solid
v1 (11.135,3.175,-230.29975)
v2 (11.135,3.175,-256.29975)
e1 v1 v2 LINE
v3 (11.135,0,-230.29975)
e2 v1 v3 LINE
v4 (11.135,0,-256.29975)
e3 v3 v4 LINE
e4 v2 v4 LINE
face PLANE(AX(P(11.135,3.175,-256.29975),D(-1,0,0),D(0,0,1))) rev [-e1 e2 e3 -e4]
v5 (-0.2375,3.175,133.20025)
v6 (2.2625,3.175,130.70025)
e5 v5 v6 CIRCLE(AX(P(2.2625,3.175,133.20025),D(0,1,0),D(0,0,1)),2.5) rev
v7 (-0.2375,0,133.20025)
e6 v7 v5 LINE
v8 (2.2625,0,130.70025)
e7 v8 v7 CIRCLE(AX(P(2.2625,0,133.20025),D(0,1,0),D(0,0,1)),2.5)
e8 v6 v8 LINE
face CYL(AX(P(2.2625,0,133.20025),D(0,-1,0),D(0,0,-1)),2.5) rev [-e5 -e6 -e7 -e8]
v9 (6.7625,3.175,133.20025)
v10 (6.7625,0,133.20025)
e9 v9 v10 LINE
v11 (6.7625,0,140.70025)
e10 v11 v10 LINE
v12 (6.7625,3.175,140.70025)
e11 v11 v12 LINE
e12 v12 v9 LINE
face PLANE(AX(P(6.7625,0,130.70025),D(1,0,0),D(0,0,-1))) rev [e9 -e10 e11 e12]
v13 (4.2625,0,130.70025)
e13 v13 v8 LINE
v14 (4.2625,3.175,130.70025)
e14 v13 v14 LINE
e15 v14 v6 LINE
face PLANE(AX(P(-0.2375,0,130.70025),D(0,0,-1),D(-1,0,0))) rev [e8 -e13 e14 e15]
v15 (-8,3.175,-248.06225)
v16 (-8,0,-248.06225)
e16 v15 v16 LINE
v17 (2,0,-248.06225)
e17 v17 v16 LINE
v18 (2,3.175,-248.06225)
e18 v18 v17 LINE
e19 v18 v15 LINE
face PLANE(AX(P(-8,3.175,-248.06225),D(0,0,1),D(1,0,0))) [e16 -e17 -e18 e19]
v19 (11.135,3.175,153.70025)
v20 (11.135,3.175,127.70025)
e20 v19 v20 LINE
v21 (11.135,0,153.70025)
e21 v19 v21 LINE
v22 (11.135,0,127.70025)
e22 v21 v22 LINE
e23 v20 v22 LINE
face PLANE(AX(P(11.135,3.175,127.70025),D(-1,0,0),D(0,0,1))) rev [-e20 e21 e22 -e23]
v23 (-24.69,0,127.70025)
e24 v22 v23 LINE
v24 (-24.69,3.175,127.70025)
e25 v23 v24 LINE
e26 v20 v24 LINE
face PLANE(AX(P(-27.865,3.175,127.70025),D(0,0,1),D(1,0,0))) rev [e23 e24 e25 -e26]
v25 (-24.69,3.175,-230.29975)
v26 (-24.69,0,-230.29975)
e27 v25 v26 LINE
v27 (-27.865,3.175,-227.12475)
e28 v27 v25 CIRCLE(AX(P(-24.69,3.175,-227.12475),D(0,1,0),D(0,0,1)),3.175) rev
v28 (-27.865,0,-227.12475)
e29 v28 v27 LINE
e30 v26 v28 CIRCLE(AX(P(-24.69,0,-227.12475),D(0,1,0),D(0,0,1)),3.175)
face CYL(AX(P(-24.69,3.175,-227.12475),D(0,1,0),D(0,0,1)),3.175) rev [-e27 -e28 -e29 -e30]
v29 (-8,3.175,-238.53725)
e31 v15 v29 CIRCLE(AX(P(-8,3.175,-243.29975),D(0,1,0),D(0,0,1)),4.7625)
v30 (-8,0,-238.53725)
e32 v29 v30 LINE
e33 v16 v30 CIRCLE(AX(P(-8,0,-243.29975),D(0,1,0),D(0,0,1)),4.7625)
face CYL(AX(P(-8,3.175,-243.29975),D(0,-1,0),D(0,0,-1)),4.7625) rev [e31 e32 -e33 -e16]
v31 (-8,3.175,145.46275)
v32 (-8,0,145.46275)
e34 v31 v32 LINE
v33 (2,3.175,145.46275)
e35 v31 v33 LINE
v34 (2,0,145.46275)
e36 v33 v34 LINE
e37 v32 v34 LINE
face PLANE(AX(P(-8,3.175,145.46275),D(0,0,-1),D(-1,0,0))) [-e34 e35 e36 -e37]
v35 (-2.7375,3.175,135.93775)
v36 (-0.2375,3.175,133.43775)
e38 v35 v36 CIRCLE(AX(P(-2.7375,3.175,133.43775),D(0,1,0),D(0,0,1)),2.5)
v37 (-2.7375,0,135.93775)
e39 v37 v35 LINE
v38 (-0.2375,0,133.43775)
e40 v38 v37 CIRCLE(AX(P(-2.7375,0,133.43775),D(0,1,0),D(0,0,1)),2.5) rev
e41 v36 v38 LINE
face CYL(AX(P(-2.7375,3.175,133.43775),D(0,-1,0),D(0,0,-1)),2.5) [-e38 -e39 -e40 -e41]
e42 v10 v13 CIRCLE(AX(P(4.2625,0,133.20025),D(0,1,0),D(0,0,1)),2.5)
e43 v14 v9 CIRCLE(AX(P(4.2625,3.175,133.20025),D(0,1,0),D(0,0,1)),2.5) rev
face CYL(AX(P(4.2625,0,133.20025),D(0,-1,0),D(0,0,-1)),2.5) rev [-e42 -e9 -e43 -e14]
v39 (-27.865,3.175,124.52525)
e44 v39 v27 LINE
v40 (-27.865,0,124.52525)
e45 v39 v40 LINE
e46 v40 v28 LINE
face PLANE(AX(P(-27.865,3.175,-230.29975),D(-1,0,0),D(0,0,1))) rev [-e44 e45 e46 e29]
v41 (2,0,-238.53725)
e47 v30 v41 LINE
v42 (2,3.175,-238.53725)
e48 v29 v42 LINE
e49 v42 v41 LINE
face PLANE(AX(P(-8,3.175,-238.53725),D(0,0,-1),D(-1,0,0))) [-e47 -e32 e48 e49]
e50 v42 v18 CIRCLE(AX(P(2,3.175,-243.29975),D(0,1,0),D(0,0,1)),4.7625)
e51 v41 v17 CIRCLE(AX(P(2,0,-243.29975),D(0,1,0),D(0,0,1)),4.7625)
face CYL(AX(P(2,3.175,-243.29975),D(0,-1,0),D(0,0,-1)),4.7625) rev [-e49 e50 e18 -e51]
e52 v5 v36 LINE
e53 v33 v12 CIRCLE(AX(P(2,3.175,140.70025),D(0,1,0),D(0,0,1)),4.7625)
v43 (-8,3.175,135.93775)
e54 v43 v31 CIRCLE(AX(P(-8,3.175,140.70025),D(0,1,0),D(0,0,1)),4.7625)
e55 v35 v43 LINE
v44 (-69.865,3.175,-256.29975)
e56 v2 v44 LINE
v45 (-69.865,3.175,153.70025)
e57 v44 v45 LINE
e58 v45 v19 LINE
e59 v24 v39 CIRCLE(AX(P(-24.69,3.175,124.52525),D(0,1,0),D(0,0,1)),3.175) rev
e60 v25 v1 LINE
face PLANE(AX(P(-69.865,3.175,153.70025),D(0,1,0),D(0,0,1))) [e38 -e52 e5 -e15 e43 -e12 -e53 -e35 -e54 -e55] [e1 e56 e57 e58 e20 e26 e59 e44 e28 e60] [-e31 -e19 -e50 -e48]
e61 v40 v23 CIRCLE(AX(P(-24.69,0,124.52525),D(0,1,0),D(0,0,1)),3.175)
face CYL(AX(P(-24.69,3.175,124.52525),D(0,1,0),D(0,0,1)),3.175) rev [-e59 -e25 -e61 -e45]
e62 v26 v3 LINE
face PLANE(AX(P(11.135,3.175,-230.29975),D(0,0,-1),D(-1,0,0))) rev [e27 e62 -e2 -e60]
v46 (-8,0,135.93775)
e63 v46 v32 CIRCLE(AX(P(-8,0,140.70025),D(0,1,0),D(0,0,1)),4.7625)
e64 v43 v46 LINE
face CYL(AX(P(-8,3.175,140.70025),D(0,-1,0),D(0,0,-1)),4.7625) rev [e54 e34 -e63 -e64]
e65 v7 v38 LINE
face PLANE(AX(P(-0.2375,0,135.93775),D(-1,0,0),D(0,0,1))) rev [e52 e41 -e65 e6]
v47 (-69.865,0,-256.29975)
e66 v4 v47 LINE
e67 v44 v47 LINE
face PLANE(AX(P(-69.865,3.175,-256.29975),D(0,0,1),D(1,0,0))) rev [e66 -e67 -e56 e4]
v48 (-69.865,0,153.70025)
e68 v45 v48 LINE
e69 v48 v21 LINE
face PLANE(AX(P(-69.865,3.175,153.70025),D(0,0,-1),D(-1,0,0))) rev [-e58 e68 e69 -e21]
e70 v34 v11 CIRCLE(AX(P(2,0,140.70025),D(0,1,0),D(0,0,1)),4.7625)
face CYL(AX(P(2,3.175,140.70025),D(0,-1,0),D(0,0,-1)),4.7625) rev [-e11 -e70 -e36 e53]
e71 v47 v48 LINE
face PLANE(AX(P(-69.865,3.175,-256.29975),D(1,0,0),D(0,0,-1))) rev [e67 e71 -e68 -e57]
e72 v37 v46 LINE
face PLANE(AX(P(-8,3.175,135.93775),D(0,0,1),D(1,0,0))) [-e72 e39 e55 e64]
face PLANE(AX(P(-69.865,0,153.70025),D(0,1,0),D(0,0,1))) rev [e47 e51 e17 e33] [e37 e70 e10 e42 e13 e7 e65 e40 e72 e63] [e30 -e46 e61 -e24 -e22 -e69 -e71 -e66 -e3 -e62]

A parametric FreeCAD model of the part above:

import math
import FreeCAD as App
import Part
import Sketcher
from FreeCAD import Vector
Q = App.Units.Quantity


def edges_at(feature, points):
    """Names of the edges that pass closest to the given points."""
    edges = feature.Shape.Edges
    near = lambda p: min(range(len(edges)), key=lambda i: edges[i].distToShape(Part.Vertex(*p))[0])
    return sorted({f"Edge{near(p) + 1}" for p in points})


def add_polygon(sketch, points):
    """Adds a closed chain of lines whose ends are joined by coincident constraints."""
    first, n = sketch.GeometryCount, len(points)
    for a, b in zip(points, points[1:] + points[:1]):
        sketch.addGeometry(Part.LineSegment(App.Vector(*a, 0), App.Vector(*b, 0)), False)
    for i in range(n):
        sketch.addConstraint(Sketcher.Constraint("Coincident", first + i, 2, first + (i + 1) % n, 1))

doc = App.newDocument("Part")
body = doc.addObject("PartDesign::Body", "Body")

# Sketch on XZ plane
sketch1 = doc.addObject("Sketcher::SketchObject", "Sketch")
body.addObject(sketch1)
sketch1.AttachmentSupport = (doc.XZ_Plane, [""])
sketch1.MapMode = "FlatFace"
add_polygon(sketch1, [(11.1, -256.3), (-69.9, -256.3), (-69.9, 153.7), (11.1, 153.7), (11.1, 127.7), (-27.9, 127.7), (-27.9, -230.3), (11.1, -230.3)])  # lines 0-7
sketch1.addGeometry(Part.LineSegment(Vector(-8, 135.9, 0), Vector(2, 135.9, 0)), False)  # 8
sketch1.addGeometry(Part.ArcOfCircle(Part.Circle(Vector(2, 140.7, 0), Vector(0, 0, 1), 4.8), math.radians(-90), math.radians(90)), False)  # 9
sketch1.addGeometry(Part.LineSegment(Vector(2, 145.5, 0), Vector(-8, 145.5, 0)), False)  # 10
sketch1.addGeometry(Part.ArcOfCircle(Part.Circle(Vector(-8, 140.7, 0), Vector(0, 0, 1), 4.8), math.radians(90), math.radians(270)), False)  # 11
sketch1.addGeometry(Part.LineSegment(Vector(-8, -248.1, 0), Vector(2, -248.1, 0)), False)  # 12
sketch1.addGeometry(Part.ArcOfCircle(Part.Circle(Vector(2, -243.3, 0), Vector(0, 0, 1), 4.8), math.radians(-90), math.radians(90)), False)  # 13
sketch1.addGeometry(Part.LineSegment(Vector(2, -238.5, 0), Vector(-8, -238.5, 0)), False)  # 14
sketch1.addGeometry(Part.ArcOfCircle(Part.Circle(Vector(-8, -243.3, 0), Vector(0, 0, 1), 4.8), math.radians(90), math.radians(270)), False)  # 15
sketch1.addConstraint([
    Sketcher.Constraint("Tangent", 8, 2, 9, 1),
    Sketcher.Constraint("Tangent", 9, 2, 10, 1),
    Sketcher.Constraint("Tangent", 10, 2, 11, 1),
    Sketcher.Constraint("Tangent", 11, 2, 8, 1),
    Sketcher.Constraint("Tangent", 12, 2, 13, 1),
    Sketcher.Constraint("Tangent", 13, 2, 14, 1),
    Sketcher.Constraint("Tangent", 14, 2, 15, 1),
    Sketcher.Constraint("Tangent", 15, 2, 12, 1),
    Sketcher.Constraint("Horizontal", 0),
    Sketcher.Constraint("Vertical", 1),
    Sketcher.Constraint("Horizontal", 2),
    Sketcher.Constraint("Vertical", 3),
    Sketcher.Constraint("Horizontal", 4),
    Sketcher.Constraint("Vertical", 5),
    Sketcher.Constraint("Horizontal", 6),
    Sketcher.Constraint("Vertical", 7),
    Sketcher.Constraint("Horizontal", 8),
    Sketcher.Constraint("Horizontal", 10),
    Sketcher.Constraint("Horizontal", 12),
    Sketcher.Constraint("Horizontal", 14),
    Sketcher.Constraint("Equal", 11, 13),
    Sketcher.Constraint("Vertical", 9, 3, 13, 3),
    Sketcher.Constraint("Vertical", 11, 3, 15, 3),
    Sketcher.Constraint("Vertical", 3, 2, 6, 2),
    Sketcher.Constraint("Equal", 3, 7),
    Sketcher.Constraint("DistanceX", 0, 2, 0, 1, Q("81 mm")),
    Sketcher.Constraint("DistanceX", 4, 2, 4, 1, Q("39 mm")),
    Sketcher.Constraint("DistanceX", 8, 1, 8, 2, Q("10 mm")),
    Sketcher.Constraint("DistanceY", 1, 1, 1, 2, Q("410 mm")),
    Sketcher.Constraint("DistanceY", 3, 2, 3, 1, Q("26 mm")),
    Sketcher.Constraint("DistanceX", -1, 1, 9, 3, Q("2 mm")),
    Sketcher.Constraint("DistanceY", 13, 3, 9, 3, Q("384 mm")),
    Sketcher.Constraint("DistanceY", 0, 2, 15, 3, Q("13 mm")),
    Sketcher.Constraint("Radius", 9, Q("4.7625 mm")),
    Sketcher.Constraint("DistanceX", 0, 2, -1, 1, Q("69.865 mm")),
    Sketcher.Constraint("DistanceY", -1, 1, 9, 3, Q("140.70025 mm")),
])
pad1 = doc.addObject("PartDesign::Pad", "Pad")
body.addObject(pad1)
pad1.Profile = sketch1
pad1.Length = 3.175
pad1.Reversed = True

# Sketch on XZ plane
sketch2 = doc.addObject("Sketcher::SketchObject", "Sketch001")
body.addObject(sketch2)
sketch2.AttachmentSupport = (doc.XZ_Plane, [""])
sketch2.MapMode = "FlatFace"
sketch2.AttachmentOffset = App.Placement(Vector(0, 0, -3.175), App.Rotation())
sketch2.addGeometry([
    Part.LineSegment(Vector(-0.2, 130.7, 0), Vector(-0.2, 135.9, 0)),  # 0
    Part.LineSegment(Vector(-0.2, 135.9, 0), Vector(2, 135.9, 0)),  # 1
    Part.ArcOfCircle(Part.Circle(Vector(2, 140.7, 0), Vector(0, 0, 1), 4.8), math.radians(-90), math.radians(0)),  # 2
    Part.LineSegment(Vector(6.8, 140.7, 0), Vector(6.8, 130.7, 0)),  # 3
    Part.LineSegment(Vector(6.8, 130.7, 0), Vector(-0.2, 130.7, 0)),  # 4
], False)
sketch2.addConstraint([
    Sketcher.Constraint("Coincident", 0, 2, 1, 1),
    Sketcher.Constraint("Tangent", 1, 2, 2, 1),
    Sketcher.Constraint("Tangent", 2, 2, 3, 1),
    Sketcher.Constraint("Coincident", 3, 2, 4, 1),
    Sketcher.Constraint("Coincident", 4, 2, 0, 1),
    Sketcher.Constraint("Vertical", 0),
    Sketcher.Constraint("Horizontal", 1),
    Sketcher.Constraint("Vertical", 3),
    Sketcher.Constraint("Horizontal", 4),
    Sketcher.Constraint("DistanceX", 4, 2, 4, 1, Q("7 mm")),
    Sketcher.Constraint("DistanceY", 3, 2, 3, 1, Q("10 mm")),
    Sketcher.Constraint("DistanceX", -1, 1, 2, 3, Q("2 mm")),
    Sketcher.Constraint("Radius", 2, Q("4.7625 mm")),
    Sketcher.Constraint("DistanceY", -1, 1, 2, 3, Q("140.70025 mm")),
])
pocket1 = doc.addObject("PartDesign::Pocket", "Pocket")
body.addObject(pocket1)
pocket1.Profile = sketch2
pocket1.Type = "ThroughAll"
pocket1.Reversed = True
doc.recompute()

fillet = doc.addObject("PartDesign::Fillet", "Fillet")
body.addObject(fillet)
fillet.Base = (pocket1, edges_at(pocket1, [(-0.237, 1.587, 135.938), (-0.237, 1.587, 130.7), (6.763, 1.587, 130.7)]))
fillet.Radius = 2.5
doc.recompute()

fillet2 = doc.addObject("PartDesign::Fillet", "Fillet001")
body.addObject(fillet2)
fillet2.Base = (fillet, edges_at(fillet, [(-27.865, 1.587, -230.3), (-27.865, 1.587, 127.7)]))
fillet2.Radius = 3.175

doc.recompute()
